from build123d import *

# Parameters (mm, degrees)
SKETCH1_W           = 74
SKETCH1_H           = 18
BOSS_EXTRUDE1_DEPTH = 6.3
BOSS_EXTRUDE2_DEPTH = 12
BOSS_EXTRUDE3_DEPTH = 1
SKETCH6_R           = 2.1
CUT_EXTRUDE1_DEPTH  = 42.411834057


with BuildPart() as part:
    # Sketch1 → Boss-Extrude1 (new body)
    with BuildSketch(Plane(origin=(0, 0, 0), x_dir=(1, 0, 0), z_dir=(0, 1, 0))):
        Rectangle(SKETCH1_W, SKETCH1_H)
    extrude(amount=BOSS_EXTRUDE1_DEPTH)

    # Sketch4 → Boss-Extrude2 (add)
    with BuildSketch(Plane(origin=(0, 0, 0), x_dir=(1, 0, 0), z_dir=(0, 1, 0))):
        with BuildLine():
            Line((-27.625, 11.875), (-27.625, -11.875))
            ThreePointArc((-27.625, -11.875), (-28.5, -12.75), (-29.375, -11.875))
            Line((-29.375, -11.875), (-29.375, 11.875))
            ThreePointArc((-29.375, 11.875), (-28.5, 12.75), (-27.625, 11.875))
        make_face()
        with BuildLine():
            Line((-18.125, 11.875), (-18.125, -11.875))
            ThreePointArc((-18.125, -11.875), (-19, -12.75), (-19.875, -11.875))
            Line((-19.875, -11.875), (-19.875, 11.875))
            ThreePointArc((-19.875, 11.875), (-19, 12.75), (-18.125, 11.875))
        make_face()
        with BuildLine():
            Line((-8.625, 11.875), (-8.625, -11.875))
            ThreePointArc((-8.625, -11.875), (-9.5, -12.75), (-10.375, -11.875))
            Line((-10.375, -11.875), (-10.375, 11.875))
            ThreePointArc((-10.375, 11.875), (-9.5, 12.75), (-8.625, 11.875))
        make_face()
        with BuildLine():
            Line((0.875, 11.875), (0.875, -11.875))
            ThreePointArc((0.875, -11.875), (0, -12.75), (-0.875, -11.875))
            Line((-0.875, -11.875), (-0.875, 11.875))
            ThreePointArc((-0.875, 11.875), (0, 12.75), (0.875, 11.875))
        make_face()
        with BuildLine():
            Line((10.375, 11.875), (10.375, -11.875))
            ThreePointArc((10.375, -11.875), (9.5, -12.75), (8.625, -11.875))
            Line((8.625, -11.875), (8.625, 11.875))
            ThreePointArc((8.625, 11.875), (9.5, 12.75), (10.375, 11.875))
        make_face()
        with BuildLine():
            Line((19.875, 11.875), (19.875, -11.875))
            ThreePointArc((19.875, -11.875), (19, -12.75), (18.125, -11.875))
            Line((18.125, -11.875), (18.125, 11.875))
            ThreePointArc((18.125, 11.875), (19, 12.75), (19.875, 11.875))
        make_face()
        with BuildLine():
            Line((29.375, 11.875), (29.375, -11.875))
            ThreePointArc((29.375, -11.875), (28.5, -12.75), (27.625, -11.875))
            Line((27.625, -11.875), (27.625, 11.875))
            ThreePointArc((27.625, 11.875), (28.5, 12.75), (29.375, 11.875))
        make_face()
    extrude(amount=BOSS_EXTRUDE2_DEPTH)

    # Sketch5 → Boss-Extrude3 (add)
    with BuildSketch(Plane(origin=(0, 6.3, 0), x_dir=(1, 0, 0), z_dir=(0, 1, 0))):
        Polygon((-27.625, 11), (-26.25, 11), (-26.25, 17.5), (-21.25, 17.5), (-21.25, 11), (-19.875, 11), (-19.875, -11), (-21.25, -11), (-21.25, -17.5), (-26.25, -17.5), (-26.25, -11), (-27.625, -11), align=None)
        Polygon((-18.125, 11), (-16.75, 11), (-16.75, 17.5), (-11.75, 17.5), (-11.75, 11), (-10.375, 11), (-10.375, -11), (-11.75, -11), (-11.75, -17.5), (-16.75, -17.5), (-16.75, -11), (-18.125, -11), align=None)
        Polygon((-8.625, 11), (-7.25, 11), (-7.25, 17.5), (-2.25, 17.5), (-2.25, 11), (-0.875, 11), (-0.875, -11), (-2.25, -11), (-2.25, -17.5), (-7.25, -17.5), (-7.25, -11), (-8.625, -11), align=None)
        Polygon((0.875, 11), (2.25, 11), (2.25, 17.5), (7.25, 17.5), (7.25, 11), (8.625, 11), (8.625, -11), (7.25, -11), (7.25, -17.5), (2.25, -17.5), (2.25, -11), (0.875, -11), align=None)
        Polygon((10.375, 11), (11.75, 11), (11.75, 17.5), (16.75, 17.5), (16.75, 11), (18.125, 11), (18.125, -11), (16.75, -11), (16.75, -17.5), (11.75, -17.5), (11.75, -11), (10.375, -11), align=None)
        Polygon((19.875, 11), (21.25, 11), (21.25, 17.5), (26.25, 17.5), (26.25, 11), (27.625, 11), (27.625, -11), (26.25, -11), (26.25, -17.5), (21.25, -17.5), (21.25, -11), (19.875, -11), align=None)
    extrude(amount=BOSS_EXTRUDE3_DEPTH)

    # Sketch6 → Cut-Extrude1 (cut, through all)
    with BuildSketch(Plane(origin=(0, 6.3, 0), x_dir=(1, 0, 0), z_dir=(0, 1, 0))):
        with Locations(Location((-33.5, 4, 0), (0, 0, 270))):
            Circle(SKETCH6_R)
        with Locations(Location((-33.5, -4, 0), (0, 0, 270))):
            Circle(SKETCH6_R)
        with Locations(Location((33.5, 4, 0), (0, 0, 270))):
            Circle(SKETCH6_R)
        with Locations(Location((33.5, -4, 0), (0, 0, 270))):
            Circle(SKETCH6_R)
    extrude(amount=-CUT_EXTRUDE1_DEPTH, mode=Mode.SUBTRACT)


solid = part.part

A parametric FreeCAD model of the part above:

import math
import FreeCAD as App
import Part
import Sketcher

V = App.Vector


def add_polygon(sketch, points):
    """Adds a closed chain of lines whose ends are joined by coincident constraints."""
    first, n = sketch.GeometryCount, len(points)
    for a, b in zip(points, points[1:] + points[:1]):
        sketch.addGeometry(Part.LineSegment(App.Vector(*a, 0), App.Vector(*b, 0)), False)
    for i in range(n):
        sketch.addConstraint(Sketcher.Constraint("Coincident", first + i, 2, first + (i + 1) % n, 1))

doc = App.newDocument("Part")
params = doc.addObject("Spreadsheet::Sheet", "Params")
for row, (alias, value) in enumerate([
    ("sketch1_width", "74 mm"),
    ("sketch1_height", "18 mm"),
    ("pad1_length", "6.3 mm"),
    ("sketch2_height", "23.75 mm"),
    ("pad2_length", "12 mm"),
    ("sketch3_width", "5 mm"),
    ("sketch3_height", "22 mm"),
    ("sketch3_height2", "6.5 mm"),
    ("pad3_length", "1 mm"),
    ("sketch4_diameter", "4.2 mm"),
], start=1):
    params.set(f"A{row}", alias)
    params.set(f"B{row}", "=" + value)
    params.setAlias(f"B{row}", alias)

body = doc.addObject("PartDesign::Body", "Body")

# Sketch on XZ plane
sketch1 = body.newObject("Sketcher::SketchObject", "Sketch")
sketch1.AttachmentSupport = (doc.getObject("XZ_Plane"), [""])
sketch1.MapMode = "FlatFace"
add_polygon(sketch1, [(-37, -9), (-37, 9), (37, 9), (37, -9)])  # lines 0-3
sketch1.addConstraint(Sketcher.Constraint("Vertical", 0))
sketch1.addConstraint(Sketcher.Constraint("Horizontal", 1))
sketch1.addConstraint(Sketcher.Constraint("Vertical", 2))
sketch1.addConstraint(Sketcher.Constraint("Horizontal", 3))
sketch1.addConstraint(Sketcher.Constraint("Symmetric", 0, 2, 2, 2, -1, 1))
sketch1.addConstraint(Sketcher.Constraint("DistanceX", 1, 1, 1, 2, 74.0))
sketch1.addConstraint(Sketcher.Constraint("DistanceY", 0, 1, 0, 2, 18.0))
sketch1.setExpression("Constraints[9]", "Params.sketch1_width")
sketch1.setExpression("Constraints[10]", "Params.sketch1_height")
pad1 = body.newObject("PartDesign::Pad", "Pad")
pad1.Profile = sketch1
pad1.setExpression("Length", "Params.pad1_length")
pad1.Reversed = True

# Sketch on XZ plane
sketch2 = body.newObject("Sketcher::SketchObject", "Sketch001")
sketch2.AttachmentSupport = (doc.getObject("XZ_Plane"), [""])
sketch2.MapMode = "FlatFace"
sketch2.addGeometry(Part.LineSegment(V(-27.6, 11.9, 0), V(-27.6, -11.9, 0)), False)
sketch2.addGeometry(Part.ArcOfCircle(Part.Circle(V(-28.5, -11.9, 0), V(0, 0, 1), 0.9), math.radians(180), math.radians(360)), False)
sketch2.addGeometry(Part.LineSegment(V(-29.4, -11.9, 0), V(-29.4, 11.9, 0)), False)
sketch2.addGeometry(Part.ArcOfCircle(Part.Circle(V(-28.5, 11.9, 0), V(0, 0, 1), 0.9), math.radians(0), math.radians(180)), False)
sketch2.addGeometry(Part.LineSegment(V(-18.1, 11.9, 0), V(-18.1, -11.9, 0)), False)
sketch2.addGeometry(Part.ArcOfCircle(Part.Circle(V(-19, -11.9, 0), V(0, 0, 1), 0.9), math.radians(180), math.radians(360)), False)
sketch2.addGeometry(Part.LineSegment(V(-19.9, -11.9, 0), V(-19.9, 11.9, 0)), False)
sketch2.addGeometry(Part.ArcOfCircle(Part.Circle(V(-19, 11.9, 0), V(0, 0, 1), 0.9), math.radians(0), math.radians(180)), False)
sketch2.addGeometry(Part.LineSegment(V(-8.6, 11.9, 0), V(-8.6, -11.9, 0)), False)
sketch2.addGeometry(Part.ArcOfCircle(Part.Circle(V(-9.5, -11.9, 0), V(0, 0, 1), 0.9), math.radians(180), math.radians(360)), False)
sketch2.addGeometry(Part.LineSegment(V(-10.4, -11.9, 0), V(-10.4, 11.9, 0)), False)
sketch2.addGeometry(Part.ArcOfCircle(Part.Circle(V(-9.5, 11.9, 0), V(0, 0, 1), 0.9), math.radians(0), math.radians(180)), False)
sketch2.addGeometry(Part.LineSegment(V(0.9, 11.9, 0), V(0.9, -11.9, 0)), False)
sketch2.addGeometry(Part.ArcOfCircle(Part.Circle(V(0, -11.9, 0), V(0, 0, 1), 0.9), math.radians(180), math.radians(360)), False)
sketch2.addGeometry(Part.LineSegment(V(-0.9, -11.9, 0), V(-0.9, 11.9, 0)), False)
sketch2.addGeometry(Part.ArcOfCircle(Part.Circle(V(0, 11.9, 0), V(0, 0, 1), 0.9), math.radians(0), math.radians(180)), False)
sketch2.addGeometry(Part.LineSegment(V(10.4, 11.9, 0), V(10.4, -11.9, 0)), False)
sketch2.addGeometry(Part.ArcOfCircle(Part.Circle(V(9.5, -11.9, 0), V(0, 0, 1), 0.9), math.radians(180), math.radians(360)), False)
sketch2.addGeometry(Part.LineSegment(V(8.6, -11.9, 0), V(8.6, 11.9, 0)), False)
sketch2.addGeometry(Part.ArcOfCircle(Part.Circle(V(9.5, 11.9, 0), V(0, 0, 1), 0.9), math.radians(0), math.radians(180)), False)
sketch2.addGeometry(Part.LineSegment(V(19.9, 11.9, 0), V(19.9, -11.9, 0)), False)
sketch2.addGeometry(Part.ArcOfCircle(Part.Circle(V(19, -11.9, 0), V(0, 0, 1), 0.9), math.radians(180), math.radians(360)), False)
sketch2.addGeometry(Part.LineSegment(V(18.1, -11.9, 0), V(18.1, 11.9, 0)), False)
sketch2.addGeometry(Part.ArcOfCircle(Part.Circle(V(19, 11.9, 0), V(0, 0, 1), 0.9), math.radians(0), math.radians(180)), False)
sketch2.addGeometry(Part.LineSegment(V(29.4, 11.9, 0), V(29.4, -11.9, 0)), False)
sketch2.addGeometry(Part.ArcOfCircle(Part.Circle(V(28.5, -11.9, 0), V(0, 0, 1), 0.9), math.radians(180), math.radians(360)), False)
sketch2.addGeometry(Part.LineSegment(V(27.6, -11.9, 0), V(27.6, 11.9, 0)), False)
sketch2.addGeometry(Part.ArcOfCircle(Part.Circle(V(28.5, 11.9, 0), V(0, 0, 1), 0.9), math.radians(0), math.radians(180)), False)
sketch2.addConstraint(Sketcher.Constraint("Tangent", 0, 2, 1, 2))
sketch2.addConstraint(Sketcher.Constraint("Tangent", 1, 1, 2, 1))
sketch2.addConstraint(Sketcher.Constraint("Tangent", 2, 2, 3, 2))
sketch2.addConstraint(Sketcher.Constraint("Tangent", 3, 1, 0, 1))
sketch2.addConstraint(Sketcher.Constraint("Tangent", 4, 2, 5, 2))
sketch2.addConstraint(Sketcher.Constraint("Tangent", 5, 1, 6, 1))
sketch2.addConstraint(Sketcher.Constraint("Tangent", 6, 2, 7, 2))
sketch2.addConstraint(Sketcher.Constraint("Tangent", 7, 1, 4, 1))
sketch2.addConstraint(Sketcher.Constraint("Tangent", 8, 2, 9, 2))
sketch2.addConstraint(Sketcher.Constraint("Tangent", 9, 1, 10, 1))
sketch2.addConstraint(Sketcher.Constraint("Tangent", 10, 2, 11, 2))
sketch2.addConstraint(Sketcher.Constraint("Tangent", 11, 1, 8, 1))
sketch2.addConstraint(Sketcher.Constraint("Tangent", 12, 2, 13, 2))
sketch2.addConstraint(Sketcher.Constraint("Tangent", 13, 1, 14, 1))
sketch2.addConstraint(Sketcher.Constraint("Tangent", 14, 2, 15, 2))
sketch2.addConstraint(Sketcher.Constraint("Tangent", 15, 1, 12, 1))
sketch2.addConstraint(Sketcher.Constraint("Tangent", 16, 2, 17, 2))
sketch2.addConstraint(Sketcher.Constraint("Tangent", 17, 1, 18, 1))
sketch2.addConstraint(Sketcher.Constraint("Tangent", 18, 2, 19, 2))
sketch2.addConstraint(Sketcher.Constraint("Tangent", 19, 1, 16, 1))
sketch2.addConstraint(Sketcher.Constraint("Tangent", 20, 2, 21, 2))
sketch2.addConstraint(Sketcher.Constraint("Tangent", 21, 1, 22, 1))
sketch2.addConstraint(Sketcher.Constraint("Tangent", 22, 2, 23, 2))
sketch2.addConstraint(Sketcher.Constraint("Tangent", 23, 1, 20, 1))
sketch2.addConstraint(Sketcher.Constraint("Tangent", 24, 2, 25, 2))
sketch2.addConstraint(Sketcher.Constraint("Tangent", 25, 1, 26, 1))
sketch2.addConstraint(Sketcher.Constraint("Tangent", 26, 2, 27, 2))
sketch2.addConstraint(Sketcher.Constraint("Tangent", 27, 1, 24, 1))
sketch2.addConstraint(Sketcher.Constraint("Vertical", 0))
sketch2.addConstraint(Sketcher.Constraint("Vertical", 2))
sketch2.addConstraint(Sketcher.Constraint("Vertical", 4))
sketch2.addConstraint(Sketcher.Constraint("Vertical", 6))
sketch2.addConstraint(Sketcher.Constraint("Vertical", 8))
sketch2.addConstraint(Sketcher.Constraint("Vertical", 10))
sketch2.addConstraint(Sketcher.Constraint("Vertical", 12))
sketch2.addConstraint(Sketcher.Constraint("Vertical", 14))
sketch2.addConstraint(Sketcher.Constraint("Vertical", 16))
sketch2.addConstraint(Sketcher.Constraint("Vertical", 18))
sketch2.addConstraint(Sketcher.Constraint("Vertical", 20))
sketch2.addConstraint(Sketcher.Constraint("Vertical", 22))
sketch2.addConstraint(Sketcher.Constraint("Vertical", 24))
sketch2.addConstraint(Sketcher.Constraint("Vertical", 26))
sketch2.addConstraint(Sketcher.Constraint("Equal", 3, 5))
sketch2.addConstraint(Sketcher.Constraint("Equal", 7, 9))
sketch2.addConstraint(Sketcher.Constraint("Equal", 11, 13))
sketch2.addConstraint(Sketcher.Constraint("Equal", 15, 17))
sketch2.addConstraint(Sketcher.Constraint("Equal", 19, 21))
sketch2.addConstraint(Sketcher.Constraint("Equal", 23, 25))
sketch2.addConstraint(Sketcher.Constraint("Symmetric", 13, 3, 15, 3, -1, 1))
sketch2.addConstraint(Sketcher.Constraint("Symmetric", 11, 3, 17, 3, -1, 1))
sketch2.addConstraint(Sketcher.Constraint("Symmetric", 7, 3, 21, 3, -1, 1))
sketch2.addConstraint(Sketcher.Constraint("Symmetric", 3, 3, 25, 3, -1, 1))
sketch2.addConstraint(Sketcher.Constraint("Horizontal", 1, 3, 5, 3))
sketch2.addConstraint(Sketcher.Constraint("Horizontal", 3, 3, 7, 3))
sketch2.addConstraint(Sketcher.Constraint("Horizontal", 5, 3, 9, 3))
sketch2.addConstraint(Sketcher.Constraint("Horizontal", 7, 3, 11, 3))
sketch2.addConstraint(Sketcher.Constraint("Horizontal", 9, 3, 13, 3))
sketch2.addConstraint(Sketcher.Constraint("Horizontal", 11, 3, 15, 3))
sketch2.addConstraint(Sketcher.Constraint("Horizontal", 15, 3, 19, 3))
sketch2.addConstraint(Sketcher.Constraint("Horizontal", 19, 3, 23, 3))
sketch2.addConstraint(Sketcher.Constraint("Horizontal", 23, 3, 27, 3))
sketch2.addConstraint(Sketcher.Constraint("DistanceX", 5, 3, -1, 1, 19.0))
sketch2.addConstraint(Sketcher.Constraint("Radius", 1, 0.875))
sketch2.addConstraint(Sketcher.Constraint("DistanceX", 1, 3, 9, 3, 19.0))
sketch2.addConstraint(Sketcher.Constraint("DistanceX", 9, 3, 17, 3, 19.0))
sketch2.addConstraint(Sketcher.Constraint("DistanceY", 0, 2, 0, 1, 23.75))
sketch2.setExpression("Constraints[65]", "Params.sketch2_height")
pad2 = body.newObject("PartDesign::Pad", "Pad001")
pad2.Profile = sketch2
pad2.setExpression("Length", "Params.pad2_length")
pad2.Reversed = True

# Sketch on XZ plane
sketch3 = body.newObject("Sketcher::SketchObject", "Sketch002")
sketch3.AttachmentSupport = (doc.getObject("XZ_Plane"), [""])
sketch3.MapMode = "FlatFace"
sketch3.AttachmentOffset = App.Placement(V(0, 0, -6.3), App.Rotation())
add_polygon(sketch3, [(-26.2, -11), (-27.6, -11), (-27.6, 11), (-26.2, 11), (-26.2, 17.5), (-21.2, 17.5), (-21.2, 11), (-19.9, 11), (-19.9, -11), (-21.2, -11), (-21.2, -17.5), (-26.2, -17.5)])  # lines 0-11
add_polygon(sketch3, [(-16.8, -11), (-18.1, -11), (-18.1, 11), (-16.8, 11), (-16.8, 17.5), (-11.8, 17.5), (-11.8, 11), (-10.4, 11), (-10.4, -11), (-11.8, -11), (-11.8, -17.5), (-16.8, -17.5)])  # lines 12-23
add_polygon(sketch3, [(-7.2, -11), (-8.6, -11), (-8.6, 11), (-7.2, 11), (-7.2, 17.5), (-2.2, 17.5), (-2.2, 11), (-0.9, 11), (-0.9, -11), (-2.2, -11), (-2.2, -17.5), (-7.2, -17.5)])  # lines 24-35
add_polygon(sketch3, [(2.2, -11), (0.9, -11), (0.9, 11), (2.2, 11), (2.2, 17.5), (7.2, 17.5), (7.2, 11), (8.6, 11), (8.6, -11), (7.2, -11), (7.2, -17.5), (2.2, -17.5)])  # lines 36-47
add_polygon(sketch3, [(11.8, -11), (10.4, -11), (10.4, 11), (11.8, 11), (11.8, 17.5), (16.8, 17.5), (16.8, 11), (18.1, 11), (18.1, -11), (16.8, -11), (16.8, -17.5), (11.8, -17.5)])  # lines 48-59
add_polygon(sketch3, [(21.2, -11), (19.9, -11), (19.9, 11), (21.2, 11), (21.2, 17.5), (26.2, 17.5), (26.2, 11), (27.6, 11), (27.6, -11), (26.2, -11), (26.2, -17.5), (21.2, -17.5)])  # lines 60-71
sketch3.addConstraint(Sketcher.Constraint("Horizontal", 0))
sketch3.addConstraint(Sketcher.Constraint("Vertical", 1))
sketch3.addConstraint(Sketcher.Constraint("Horizontal", 2))
sketch3.addConstraint(Sketcher.Constraint("Vertical", 3))
sketch3.addConstraint(Sketcher.Constraint("Horizontal", 4))
sketch3.addConstraint(Sketcher.Constraint("Vertical", 5))
sketch3.addConstraint(Sketcher.Constraint("Horizontal", 6))
sketch3.addConstraint(Sketcher.Constraint("Vertical", 7))
sketch3.addConstraint(Sketcher.Constraint("Horizontal", 8))
sketch3.addConstraint(Sketcher.Constraint("Vertical", 9))
sketch3.addConstraint(Sketcher.Constraint("Horizontal", 10))
sketch3.addConstraint(Sketcher.Constraint("Vertical", 11))
sketch3.addConstraint(Sketcher.Constraint("Horizontal", 12))
sketch3.addConstraint(Sketcher.Constraint("Vertical", 13))
sketch3.addConstraint(Sketcher.Constraint("Horizontal", 14))
sketch3.addConstraint(Sketcher.Constraint("Vertical", 15))
sketch3.addConstraint(Sketcher.Constraint("Horizontal", 16))
sketch3.addConstraint(Sketcher.Constraint("Vertical", 17))
sketch3.addConstraint(Sketcher.Constraint("Horizontal", 18))
sketch3.addConstraint(Sketcher.Constraint("Vertical", 19))
sketch3.addConstraint(Sketcher.Constraint("Horizontal", 20))
sketch3.addConstraint(Sketcher.Constraint("Vertical", 21))
sketch3.addConstraint(Sketcher.Constraint("Horizontal", 22))
sketch3.addConstraint(Sketcher.Constraint("Vertical", 23))
sketch3.addConstraint(Sketcher.Constraint("Horizontal", 24))
sketch3.addConstraint(Sketcher.Constraint("Vertical", 25))
sketch3.addConstraint(Sketcher.Constraint("Horizontal", 26))
sketch3.addConstraint(Sketcher.Constraint("Vertical", 27))
sketch3.addConstraint(Sketcher.Constraint("Horizontal", 28))
sketch3.addConstraint(Sketcher.Constraint("Vertical", 29))
sketch3.addConstraint(Sketcher.Constraint("Horizontal", 30))
sketch3.addConstraint(Sketcher.Constraint("Vertical", 31))
sketch3.addConstraint(Sketcher.Constraint("Horizontal", 32))
sketch3.addConstraint(Sketcher.Constraint("Vertical", 33))
sketch3.addConstraint(Sketcher.Constraint("Horizontal", 34))
sketch3.addConstraint(Sketcher.Constraint("Vertical", 35))
sketch3.addConstraint(Sketcher.Constraint("Horizontal", 36))
sketch3.addConstraint(Sketcher.Constraint("Vertical", 37))
sketch3.addConstraint(Sketcher.Constraint("Horizontal", 38))
sketch3.addConstraint(Sketcher.Constraint("Vertical", 39))
sketch3.addConstraint(Sketcher.Constraint("Horizontal", 40))
sketch3.addConstraint(Sketcher.Constraint("Vertical", 41))
sketch3.addConstraint(Sketcher.Constraint("Horizontal", 42))
sketch3.addConstraint(Sketcher.Constraint("Vertical", 43))
sketch3.addConstraint(Sketcher.Constraint("Horizontal", 44))
sketch3.addConstraint(Sketcher.Constraint("Vertical", 45))
sketch3.addConstraint(Sketcher.Constraint("Horizontal", 46))
sketch3.addConstraint(Sketcher.Constraint("Vertical", 47))
sketch3.addConstraint(Sketcher.Constraint("Horizontal", 48))
sketch3.addConstraint(Sketcher.Constraint("Vertical", 49))
sketch3.addConstraint(Sketcher.Constraint("Horizontal", 50))
sketch3.addConstraint(Sketcher.Constraint("Vertical", 51))
sketch3.addConstraint(Sketcher.Constraint("Horizontal", 52))
sketch3.addConstraint(Sketcher.Constraint("Vertical", 53))
sketch3.addConstraint(Sketcher.Constraint("Horizontal", 54))
sketch3.addConstraint(Sketcher.Constraint("Vertical", 55))
sketch3.addConstraint(Sketcher.Constraint("Horizontal", 56))
sketch3.addConstraint(Sketcher.Constraint("Vertical", 57))
sketch3.addConstraint(Sketcher.Constraint("Horizontal", 58))
sketch3.addConstraint(Sketcher.Constraint("Vertical", 59))
sketch3.addConstraint(Sketcher.Constraint("Horizontal", 60))
sketch3.addConstraint(Sketcher.Constraint("Vertical", 61))
sketch3.addConstraint(Sketcher.Constraint("Horizontal", 62))
sketch3.addConstraint(Sketcher.Constraint("Vertical", 63))
sketch3.addConstraint(Sketcher.Constraint("Horizontal", 64))
sketch3.addConstraint(Sketcher.Constraint("Vertical", 65))
sketch3.addConstraint(Sketcher.Constraint("Horizontal", 66))
sketch3.addConstraint(Sketcher.Constraint("Vertical", 67))
sketch3.addConstraint(Sketcher.Constraint("Horizontal", 68))
sketch3.addConstraint(Sketcher.Constraint("Vertical", 69))
sketch3.addConstraint(Sketcher.Constraint("Horizontal", 70))
sketch3.addConstraint(Sketcher.Constraint("Vertical", 71))
sketch3.addConstraint(Sketcher.Constraint("Symmetric", 30, 2, 36, 2, -1, 1))
sketch3.addConstraint(Sketcher.Constraint("Symmetric", 32, 2, 38, 2, -1, 1))
sketch3.addConstraint(Sketcher.Constraint("Symmetric", 34, 2, 40, 2, -1, 1))
sketch3.addConstraint(Sketcher.Constraint("Symmetric", 24, 2, 42, 2, -1, 1))
sketch3.addConstraint(Sketcher.Constraint("Symmetric", 26, 2, 44, 2, -1, 1))
sketch3.addConstraint(Sketcher.Constraint("Symmetric", 28, 2, 46, 2, -1, 1))
sketch3.addConstraint(Sketcher.Constraint("Symmetric", 18, 2, 48, 2, -1, 1))
sketch3.addConstraint(Sketcher.Constraint("Symmetric", 20, 2, 50, 2, -1, 1))
sketch3.addConstraint(Sketcher.Constraint("Symmetric", 22, 2, 52, 2, -1, 1))
sketch3.addConstraint(Sketcher.Constraint("Symmetric", 12, 2, 54, 2, -1, 1))
sketch3.addConstraint(Sketcher.Constraint("Symmetric", 14, 2, 56, 2, -1, 1))
sketch3.addConstraint(Sketcher.Constraint("Symmetric", 16, 2, 58, 2, -1, 1))
sketch3.addConstraint(Sketcher.Constraint("Symmetric", 6, 2, 60, 2, -1, 1))
sketch3.addConstraint(Sketcher.Constraint("Symmetric", 8, 2, 62, 2, -1, 1))
sketch3.addConstraint(Sketcher.Constraint("Symmetric", 10, 2, 64, 2, -1, 1))
sketch3.addConstraint(Sketcher.Constraint("Symmetric", 0, 2, 66, 2, -1, 1))
sketch3.addConstraint(Sketcher.Constraint("Symmetric", 2, 2, 68, 2, -1, 1))
sketch3.addConstraint(Sketcher.Constraint("Symmetric", 4, 2, 70, 2, -1, 1))
sketch3.addConstraint(Sketcher.Constraint("Symmetric", 29, 2, 38, 2, -2))
sketch3.addConstraint(Sketcher.Constraint("Symmetric", 27, 2, 40, 2, -2))
sketch3.addConstraint(Sketcher.Constraint("Symmetric", 17, 2, 50, 2, -2))
sketch3.addConstraint(Sketcher.Constraint("Symmetric", 15, 2, 52, 2, -2))
sketch3.addConstraint(Sketcher.Constraint("Symmetric", 5, 2, 62, 2, -2))
sketch3.addConstraint(Sketcher.Constraint("Symmetric", 3, 2, 64, 2, -2))
sketch3.addConstraint(Sketcher.Constraint("Horizontal", 2, 2, 5, 2))
sketch3.addConstraint(Sketcher.Constraint("Horizontal", 0, 2, 7, 2))
sketch3.addConstraint(Sketcher.Constraint("Horizontal", 11, 2, 12, 2))
sketch3.addConstraint(Sketcher.Constraint("Horizontal", 6, 2, 13, 2))
sketch3.addConstraint(Sketcher.Constraint("Horizontal", 4, 2, 15, 2))
sketch3.addConstraint(Sketcher.Constraint("Horizontal", 14, 2, 17, 2))
sketch3.addConstraint(Sketcher.Constraint("Horizontal", 23, 2, 24, 2))
sketch3.addConstraint(Sketcher.Constraint("Horizontal", 18, 2, 25, 2))
sketch3.addConstraint(Sketcher.Constraint("Horizontal", 16, 2, 27, 2))
sketch3.addConstraint(Sketcher.Constraint("Horizontal", 26, 2, 29, 2))
sketch3.addConstraint(Sketcher.Constraint("Equal", 2, 6))
sketch3.addConstraint(Sketcher.Constraint("Equal", 8, 12))
sketch3.addConstraint(Sketcher.Constraint("Equal", 10, 16))
sketch3.addConstraint(Sketcher.Constraint("Equal", 14, 18))
sketch3.addConstraint(Sketcher.Constraint("Equal", 20, 24))
sketch3.addConstraint(Sketcher.Constraint("Equal", 22, 28))
sketch3.addConstraint(Sketcher.Constraint("Equal", 26, 30))
sketch3.addConstraint(Sketcher.Constraint("DistanceX", 4, 1, 4, 2, 5.0))
sketch3.addConstraint(Sketcher.Constraint("DistanceY", 1, 1, 1, 2, 22.0))
sketch3.addConstraint(Sketcher.Constraint("DistanceY", 3, 1, 3, 2, 6.5))
sketch3.addConstraint(Sketcher.Constraint("DistanceX", 0, 2, 0, 1, 1.375))
sketch3.addConstraint(Sketcher.Constraint("DistanceX", 2, 2, -1, 1, 26.25))
sketch3.addConstraint(Sketcher.Constraint("DistanceX", 14, 2, -1, 1, 16.75))
sketch3.addConstraint(Sketcher.Constraint("DistanceX", 26, 2, -1, 1, 7.25))
sketch3.setExpression("Constraints[185]", "Params.sketch3_width")
sketch3.setExpression("Constraints[186]", "Params.sketch3_height")
sketch3.setExpression("Constraints[187]", "Params.sketch3_height2")
pad3 = body.newObject("PartDesign::Pad", "Pad002")
pad3.Profile = sketch3
pad3.setExpression("Length", "Params.pad3_length")
pad3.Reversed = True

# Sketch on XZ plane
sketch4 = body.newObject("Sketcher::SketchObject", "Sketch003")
sketch4.AttachmentSupport = (doc.getObject("XZ_Plane"), [""])
sketch4.MapMode = "FlatFace"
sketch4.AttachmentOffset = App.Placement(V(0, 0, -6.3), App.Rotation())
sketch4.addGeometry(Part.Circle(V(-33.5, -4, 0), V(0, 0, 1), 2.1), False)
sketch4.addGeometry(Part.Circle(V(-33.5, 4, 0), V(0, 0, 1), 2.1), False)
sketch4.addGeometry(Part.Circle(V(33.5, -4, 0), V(0, 0, 1), 2.1), False)
sketch4.addGeometry(Part.Circle(V(33.5, 4, 0), V(0, 0, 1), 2.1), False)
sketch4.addConstraint(Sketcher.Constraint("Equal", 0, 1))
sketch4.addConstraint(Sketcher.Constraint("Equal", 1, 2))
sketch4.addConstraint(Sketcher.Constraint("Equal", 2, 3))
sketch4.addConstraint(Sketcher.Constraint("Symmetric", 1, 3, 2, 3, -1, 1))
sketch4.addConstraint(Sketcher.Constraint("Symmetric", 0, 3, 3, 3, -1, 1))
sketch4.addConstraint(Sketcher.Constraint("Symmetric", 0, 3, 2, 3, -2))
sketch4.addConstraint(Sketcher.Constraint("Diameter", 0, 4.2))
sketch4.addConstraint(Sketcher.Constraint("DistanceY", 0, 3, -1, 1, 4.0))
sketch4.addConstraint(Sketcher.Constraint("DistanceX", 0, 3, 2, 3, 67.0))
sketch4.setExpression("Constraints[6]", "Params.sketch4_diameter")
pocket1 = body.newObject("PartDesign::Pocket", "Pocket")
pocket1.Profile = sketch4
pocket1.Type = "ThroughAll"
pocket1.Reversed = True

doc.recompute()
